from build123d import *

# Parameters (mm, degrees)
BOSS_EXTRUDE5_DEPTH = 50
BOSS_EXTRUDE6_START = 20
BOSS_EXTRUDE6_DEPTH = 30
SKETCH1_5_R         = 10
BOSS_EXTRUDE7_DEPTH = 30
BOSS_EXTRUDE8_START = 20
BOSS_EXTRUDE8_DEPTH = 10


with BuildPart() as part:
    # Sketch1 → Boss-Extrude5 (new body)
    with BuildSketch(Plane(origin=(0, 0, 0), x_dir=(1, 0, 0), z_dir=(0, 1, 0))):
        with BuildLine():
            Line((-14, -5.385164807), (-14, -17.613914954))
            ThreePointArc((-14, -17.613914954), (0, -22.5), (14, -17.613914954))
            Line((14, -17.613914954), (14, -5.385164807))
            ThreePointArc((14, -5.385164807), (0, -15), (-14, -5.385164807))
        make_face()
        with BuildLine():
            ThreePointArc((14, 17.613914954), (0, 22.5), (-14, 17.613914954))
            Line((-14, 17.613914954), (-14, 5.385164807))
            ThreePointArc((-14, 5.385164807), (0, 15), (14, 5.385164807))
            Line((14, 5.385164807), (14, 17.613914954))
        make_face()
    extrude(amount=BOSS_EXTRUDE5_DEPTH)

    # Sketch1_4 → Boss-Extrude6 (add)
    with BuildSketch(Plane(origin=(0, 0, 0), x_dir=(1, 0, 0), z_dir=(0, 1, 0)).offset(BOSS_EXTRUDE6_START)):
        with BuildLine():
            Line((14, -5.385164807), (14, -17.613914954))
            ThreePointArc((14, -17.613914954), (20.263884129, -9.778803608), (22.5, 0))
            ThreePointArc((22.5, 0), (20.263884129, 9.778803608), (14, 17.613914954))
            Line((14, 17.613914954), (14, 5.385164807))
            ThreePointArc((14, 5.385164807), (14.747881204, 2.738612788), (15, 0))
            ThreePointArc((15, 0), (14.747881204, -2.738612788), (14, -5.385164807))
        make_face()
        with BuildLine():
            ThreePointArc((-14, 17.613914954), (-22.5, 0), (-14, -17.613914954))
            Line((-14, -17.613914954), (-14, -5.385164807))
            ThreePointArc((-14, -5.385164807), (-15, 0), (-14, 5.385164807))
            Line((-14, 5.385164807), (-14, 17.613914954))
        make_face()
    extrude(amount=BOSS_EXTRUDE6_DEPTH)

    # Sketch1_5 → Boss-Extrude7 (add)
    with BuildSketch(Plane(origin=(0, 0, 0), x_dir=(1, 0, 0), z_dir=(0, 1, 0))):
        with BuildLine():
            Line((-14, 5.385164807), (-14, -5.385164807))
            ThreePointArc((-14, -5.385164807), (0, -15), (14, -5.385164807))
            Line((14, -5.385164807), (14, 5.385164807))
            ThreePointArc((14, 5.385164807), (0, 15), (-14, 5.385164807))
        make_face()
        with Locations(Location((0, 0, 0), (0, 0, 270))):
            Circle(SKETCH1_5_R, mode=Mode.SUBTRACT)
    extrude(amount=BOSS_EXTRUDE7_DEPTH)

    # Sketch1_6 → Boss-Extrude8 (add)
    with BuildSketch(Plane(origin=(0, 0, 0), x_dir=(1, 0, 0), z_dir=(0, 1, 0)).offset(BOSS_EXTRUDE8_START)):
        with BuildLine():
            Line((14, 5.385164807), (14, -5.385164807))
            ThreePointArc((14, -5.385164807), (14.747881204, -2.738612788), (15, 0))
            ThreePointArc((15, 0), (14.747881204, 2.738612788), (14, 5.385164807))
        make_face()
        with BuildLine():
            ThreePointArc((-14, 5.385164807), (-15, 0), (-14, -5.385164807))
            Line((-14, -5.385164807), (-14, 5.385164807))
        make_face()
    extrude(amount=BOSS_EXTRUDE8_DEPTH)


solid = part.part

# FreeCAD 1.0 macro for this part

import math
import FreeCAD as App
import Part
import Sketcher

V = App.Vector
Q = App.Units.Quantity

doc = App.newDocument("Part")
body = doc.addObject("PartDesign::Body", "Body")
body.AllowCompound = True

# Sketch on XZ plane
sketch1 = doc.addObject("Sketcher::SketchObject", "Sketch")
body.addObject(sketch1)
sketch1.AttachmentSupport = (doc.XZ_Plane, [""])
sketch1.MapMode = "FlatFace"
sketch1.addGeometry([
    Part.LineSegment(V(-14, 5, 0), V(-14, 18, 0)),  # 0
    Part.ArcOfCircle(Part.Circle(V(0, 0, 0), V(0, 0, 1), 23), math.radians(52), math.radians(128)),  # 1
    Part.LineSegment(V(14, 18, 0), V(14, 5, 0)),  # 2
    Part.ArcOfCircle(Part.Circle(V(0, 0, 0), V(0, 0, 1), 15), math.radians(21), math.radians(159)),  # 3
    Part.ArcOfCircle(Part.Circle(V(0, 0, 0), V(0, 0, 1), 23), math.radians(-128), math.radians(-52)),  # 4
    Part.LineSegment(V(-14, -18, 0), V(-14, -5, 0)),  # 5
    Part.ArcOfCircle(Part.Circle(V(0, 0, 0), V(0, 0, 1), 15), math.radians(-159), math.radians(-21)),  # 6
    Part.LineSegment(V(14, -5, 0), V(14, -18, 0)),  # 7
], False)
sketch1.addConstraint([
    Sketcher.Constraint("Coincident", 0, 2, 1, 2),
    Sketcher.Constraint("Coincident", 1, 1, 2, 1),
    Sketcher.Constraint("Coincident", 2, 2, 3, 1),
    Sketcher.Constraint("Coincident", 3, 2, 0, 1),
    Sketcher.Constraint("Coincident", 4, 1, 5, 1),
    Sketcher.Constraint("Coincident", 5, 2, 6, 1),
    Sketcher.Constraint("Coincident", 6, 2, 7, 1),
    Sketcher.Constraint("Coincident", 7, 2, 4, 2),
    Sketcher.Constraint("Vertical", 0),
    Sketcher.Constraint("Vertical", 2),
    Sketcher.Constraint("Vertical", 5),
    Sketcher.Constraint("Vertical", 7),
    Sketcher.Constraint("Coincident", 1, 3, -1, 1),
    Sketcher.Constraint("Coincident", 3, 3, -1, 1),
    Sketcher.Constraint("Coincident", 4, 3, -1, 1),
    Sketcher.Constraint("Coincident", 6, 3, -1, 1),
    Sketcher.Constraint("Equal", 1, 4),
    Sketcher.Constraint("Equal", 3, 6),
    Sketcher.Constraint("Horizontal", 0, 2, 1, 1),
    Sketcher.Constraint("Horizontal", 5, 2, 6, 2),
    Sketcher.Constraint("Vertical", 3, 2, 4, 1),
    Sketcher.Constraint("Radius", 3, Q("15 mm")),
    Sketcher.Constraint("Radius", 1, Q("22.5 mm")),
    Sketcher.Constraint("DistanceX", 0, 2, -1, 1, Q("14 mm")),
])
pad1 = doc.addObject("PartDesign::Pad", "Pad")
body.addObject(pad1)
pad1.Profile = sketch1
pad1.Length = 50
pad1.Reversed = True

# Sketch on XZ plane
sketch2 = doc.addObject("Sketcher::SketchObject", "Sketch001")
body.addObject(sketch2)
sketch2.AttachmentSupport = (doc.XZ_Plane, [""])
sketch2.MapMode = "FlatFace"
sketch2.AttachmentOffset = App.Placement(V(0, 0, -20), App.Rotation())
sketch2.addGeometry([
    Part.LineSegment(V(14, 5, 0), V(14, 18, 0)),  # 0
    Part.ArcOfCircle(Part.Circle(V(0, 0, 0), V(0, 0, 1), 23), math.radians(0), math.radians(52)),  # 1
    Part.ArcOfCircle(Part.Circle(V(0, 0, 0), V(0, 0, 1), 23), math.radians(-52), math.radians(0)),  # 2
    Part.LineSegment(V(14, -18, 0), V(14, -5, 0)),  # 3
    Part.ArcOfCircle(Part.Circle(V(0, 0, 0), V(0, 0, 1), 15), math.radians(-21), math.radians(0)),  # 4
    Part.ArcOfCircle(Part.Circle(V(0, 0, 0), V(0, 0, 1), 15), math.radians(0), math.radians(21)),  # 5
    Part.ArcOfCircle(Part.Circle(V(0, 0, 0), V(0, 0, 1), 22), math.radians(128), math.radians(232)),  # 6
    Part.LineSegment(V(-14, 18, 0), V(-14, 5, 0)),  # 7
    Part.ArcOfCircle(Part.Circle(V(0, 0, 0), V(0, 0, 1), 15), math.radians(159), math.radians(201)),  # 8
    Part.LineSegment(V(-14, -5, 0), V(-14, -18, 0)),  # 9
], False)
sketch2.addConstraint([
    Sketcher.Constraint("Coincident", 0, 2, 1, 2),
    Sketcher.Constraint("Tangent", 1, 1, 2, 2),
    Sketcher.Constraint("Coincident", 2, 1, 3, 1),
    Sketcher.Constraint("Coincident", 3, 2, 4, 1),
    Sketcher.Constraint("Tangent", 4, 2, 5, 1),
    Sketcher.Constraint("Coincident", 5, 2, 0, 1),
    Sketcher.Constraint("Coincident", 6, 1, 7, 1),
    Sketcher.Constraint("Coincident", 7, 2, 8, 1),
    Sketcher.Constraint("Coincident", 8, 2, 9, 1),
    Sketcher.Constraint("Coincident", 9, 2, 6, 2),
    Sketcher.Constraint("Vertical", 0),
    Sketcher.Constraint("Vertical", 3),
    Sketcher.Constraint("Vertical", 7),
    Sketcher.Constraint("Vertical", 9),
    Sketcher.Constraint("Coincident", 1, 3, -1, 1),
    Sketcher.Constraint("Coincident", 4, 3, -1, 1),
    Sketcher.Constraint("Coincident", 6, 3, -1, 1),
    Sketcher.Constraint("Coincident", 8, 3, -1, 1),
    Sketcher.Constraint("Equal", 1, 2),
    Sketcher.Constraint("Equal", 4, 5),
    Sketcher.Constraint("Equal", 2, 6),
    Sketcher.Constraint("Equal", 5, 8),
    Sketcher.Constraint("PointOnObject", 1, 1, -1),
    Sketcher.Constraint("PointOnObject", 4, 2, -1),
    Sketcher.Constraint("Horizontal", 0, 2, 6, 1),
    Sketcher.Constraint("Horizontal", 3, 2, 8, 2),
    Sketcher.Constraint("Vertical", 0, 2, 2, 1),
    Sketcher.Constraint("Radius", 4, Q("15 mm")),
    Sketcher.Constraint("Radius", 1, Q("22.5 mm")),
    Sketcher.Constraint("DistanceX", -1, 1, 0, 2, Q("14 mm")),
])
pad2 = doc.addObject("PartDesign::Pad", "Pad001")
body.addObject(pad2)
pad2.Profile = sketch2
pad2.Length = 30
pad2.Reversed = True

# Sketch on XZ plane
sketch3 = doc.addObject("Sketcher::SketchObject", "Sketch002")
body.addObject(sketch3)
sketch3.AttachmentSupport = (doc.XZ_Plane, [""])
sketch3.MapMode = "FlatFace"
sketch3.addGeometry([
    Part.LineSegment(V(-14, -5, 0), V(-14, 5, 0)),  # 0
    Part.ArcOfCircle(Part.Circle(V(0, 0, 0), V(0, 0, 1), 15), math.radians(21), math.radians(159)),  # 1
    Part.LineSegment(V(14, 5, 0), V(14, -5, 0)),  # 2
    Part.ArcOfCircle(Part.Circle(V(0, 0, 0), V(0, 0, 1), 15), math.radians(-159), math.radians(-21)),  # 3
    Part.Circle(V(0, 0, 0), V(0, 0, 1), 10),  # 4
], False)
sketch3.addConstraint([
    Sketcher.Constraint("Coincident", 0, 2, 1, 2),
    Sketcher.Constraint("Coincident", 1, 1, 2, 1),
    Sketcher.Constraint("Coincident", 2, 2, 3, 2),
    Sketcher.Constraint("Coincident", 3, 1, 0, 1),
    Sketcher.Constraint("Vertical", 0),
    Sketcher.Constraint("Vertical", 2),
    Sketcher.Constraint("Coincident", 1, 3, -1, 1),
    Sketcher.Constraint("Coincident", 3, 3, -1, 1),
    Sketcher.Constraint("Coincident", 4, 3, -1, 1),
    Sketcher.Constraint("Equal", 1, 3),
    Sketcher.Constraint("Horizontal", 0, 2, 1, 1),
    Sketcher.Constraint("Diameter", 4, Q("20 mm")),
    Sketcher.Constraint("Radius", 1, Q("15 mm")),
    Sketcher.Constraint("DistanceX", 0, 2, -1, 1, Q("14 mm")),
])
pad3 = doc.addObject("PartDesign::Pad", "Pad002")
body.addObject(pad3)
pad3.Profile = sketch3
pad3.Length = 30
pad3.Reversed = True

# Sketch on XZ plane
sketch4 = doc.addObject("Sketcher::SketchObject", "Sketch003")
body.addObject(sketch4)
sketch4.AttachmentSupport = (doc.XZ_Plane, [""])
sketch4.MapMode = "FlatFace"
sketch4.AttachmentOffset = App.Placement(V(0, 0, -20), App.Rotation())
sketch4.addGeometry([
    Part.LineSegment(V(14, -5, 0), V(14, 5, 0)),  # 0
    Part.ArcOfCircle(Part.Circle(V(0, 0, 0), V(0, 0, 1), 15), math.radians(0), math.radians(21)),  # 1
    Part.ArcOfCircle(Part.Circle(V(0, 0, 0), V(0, 0, 1), 15), math.radians(-21), math.radians(0)),  # 2
    Part.ArcOfCircle(Part.Circle(V(0, 0, 0), V(0, 0, 1), 15), math.radians(159), math.radians(201)),  # 3
    Part.LineSegment(V(-14, 5, 0), V(-14, -5, 0)),  # 4
], False)
sketch4.addConstraint([
    Sketcher.Constraint("Coincident", 0, 2, 1, 2),
    Sketcher.Constraint("Tangent", 1, 1, 2, 2),
    Sketcher.Constraint("Coincident", 2, 1, 0, 1),
    Sketcher.Constraint("Coincident", 3, 1, 4, 1),
    Sketcher.Constraint("Coincident", 4, 2, 3, 2),
    Sketcher.Constraint("Vertical", 0),
    Sketcher.Constraint("Vertical", 4),
    Sketcher.Constraint("Coincident", 1, 3, -1, 1),
    Sketcher.Constraint("Coincident", 3, 3, -1, 1),
    Sketcher.Constraint("Equal", 1, 2),
    Sketcher.Constraint("Equal", 2, 3),
    Sketcher.Constraint("PointOnObject", 1, 1, -1),
    Sketcher.Constraint("Horizontal", 0, 2, 3, 1),
    Sketcher.Constraint("Radius", 1, Q("15 mm")),
    Sketcher.Constraint("DistanceX", -1, 1, 0, 2, Q("14 mm")),
])
pad4 = doc.addObject("PartDesign::Pad", "Pad003")
body.addObject(pad4)
pad4.Profile = sketch4
pad4.Length = 10
pad4.Reversed = True

doc.recompute()
